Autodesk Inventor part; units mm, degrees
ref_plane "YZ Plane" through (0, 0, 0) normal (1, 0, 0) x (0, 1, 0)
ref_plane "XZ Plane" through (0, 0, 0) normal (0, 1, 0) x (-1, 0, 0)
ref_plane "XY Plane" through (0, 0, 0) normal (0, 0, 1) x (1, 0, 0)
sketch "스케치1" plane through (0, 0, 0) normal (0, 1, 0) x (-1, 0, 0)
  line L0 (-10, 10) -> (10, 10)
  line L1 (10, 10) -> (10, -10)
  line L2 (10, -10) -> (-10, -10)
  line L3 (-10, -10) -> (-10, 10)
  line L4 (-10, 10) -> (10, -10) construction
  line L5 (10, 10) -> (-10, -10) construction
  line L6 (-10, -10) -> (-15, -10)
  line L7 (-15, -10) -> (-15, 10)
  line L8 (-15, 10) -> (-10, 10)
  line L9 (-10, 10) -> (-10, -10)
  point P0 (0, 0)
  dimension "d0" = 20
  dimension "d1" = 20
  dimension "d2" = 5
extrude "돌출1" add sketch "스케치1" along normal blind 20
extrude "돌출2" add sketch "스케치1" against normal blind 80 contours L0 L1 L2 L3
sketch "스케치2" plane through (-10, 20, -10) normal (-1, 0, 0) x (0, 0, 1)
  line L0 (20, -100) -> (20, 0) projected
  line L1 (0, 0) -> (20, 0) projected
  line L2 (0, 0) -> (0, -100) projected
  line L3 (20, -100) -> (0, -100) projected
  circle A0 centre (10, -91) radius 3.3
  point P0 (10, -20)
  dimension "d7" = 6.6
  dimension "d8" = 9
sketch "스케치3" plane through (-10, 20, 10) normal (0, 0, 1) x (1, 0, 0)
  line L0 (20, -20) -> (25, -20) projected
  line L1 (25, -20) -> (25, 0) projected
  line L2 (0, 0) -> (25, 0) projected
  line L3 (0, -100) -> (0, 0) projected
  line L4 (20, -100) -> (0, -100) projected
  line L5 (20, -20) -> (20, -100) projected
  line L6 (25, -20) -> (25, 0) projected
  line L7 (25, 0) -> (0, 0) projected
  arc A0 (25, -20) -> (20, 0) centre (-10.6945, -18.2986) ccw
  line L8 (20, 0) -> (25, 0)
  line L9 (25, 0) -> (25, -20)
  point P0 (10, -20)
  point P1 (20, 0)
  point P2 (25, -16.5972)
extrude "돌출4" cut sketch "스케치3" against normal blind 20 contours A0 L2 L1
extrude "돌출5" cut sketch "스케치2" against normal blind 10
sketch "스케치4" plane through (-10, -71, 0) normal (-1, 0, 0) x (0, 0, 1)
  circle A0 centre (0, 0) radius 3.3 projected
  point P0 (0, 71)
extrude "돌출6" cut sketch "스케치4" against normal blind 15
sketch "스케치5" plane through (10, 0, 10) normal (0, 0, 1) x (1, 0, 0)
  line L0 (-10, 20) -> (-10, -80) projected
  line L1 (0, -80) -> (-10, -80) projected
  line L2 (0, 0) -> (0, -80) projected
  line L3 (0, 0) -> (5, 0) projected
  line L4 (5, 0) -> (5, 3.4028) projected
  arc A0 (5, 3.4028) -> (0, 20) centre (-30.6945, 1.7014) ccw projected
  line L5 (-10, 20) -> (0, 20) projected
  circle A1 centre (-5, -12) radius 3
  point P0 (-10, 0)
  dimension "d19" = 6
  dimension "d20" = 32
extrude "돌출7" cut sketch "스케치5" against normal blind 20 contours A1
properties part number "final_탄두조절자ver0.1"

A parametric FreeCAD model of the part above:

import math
import FreeCAD as App
import Part
import Sketcher

doc = App.newDocument("Part")
body = doc.addObject("PartDesign::Body", "Body")

# Sketch on XZ plane
sketch1 = body.newObject("Sketcher::SketchObject", "Sketch")
sketch1.AttachmentSupport = (doc.getObject("XZ_Plane"), [""])
sketch1.MapMode = "FlatFace"
sketch1.addGeometry([
    Part.LineSegment(App.Vector(-10, 10, 0), App.Vector(15, 10, 0)),
    Part.LineSegment(App.Vector(15, 10, 0), App.Vector(15, -10, 0)),
    Part.LineSegment(App.Vector(15, -10, 0), App.Vector(-10, -10, 0)),
    Part.LineSegment(App.Vector(-10, -10, 0), App.Vector(-10, 10, 0)),
], False)
sketch1.addConstraint([
    Sketcher.Constraint("Coincident", 0, 2, 1, 1),
    Sketcher.Constraint("Coincident", 1, 2, 2, 1),
    Sketcher.Constraint("Coincident", 2, 2, 3, 1),
    Sketcher.Constraint("Coincident", 3, 2, 0, 1),
    Sketcher.Constraint("Horizontal", 0),
    Sketcher.Constraint("Vertical", 1),
    Sketcher.Constraint("Horizontal", 2),
    Sketcher.Constraint("Vertical", 3),
    Sketcher.Constraint("DistanceY", 1, 2, 1, 1, 20.0),
    Sketcher.Constraint("DistanceX", 0, 1, 0, 2, 25.0),
    Sketcher.Constraint("DistanceX", -1, 1, 0, 2, 15.0),
    Sketcher.Constraint("DistanceY", -1, 1, 0, 2, 10.0),
])
pad1 = body.newObject("PartDesign::Pad", "Pad")
pad1.Profile = sketch1
pad1.Length = 20
pad1.Reversed = True

# Sketch on XZ plane
sketch2 = body.newObject("Sketcher::SketchObject", "Sketch001")
sketch2.AttachmentSupport = (doc.getObject("XZ_Plane"), [""])
sketch2.MapMode = "FlatFace"
sketch2.addGeometry([
    Part.LineSegment(App.Vector(-10, 10, 0), App.Vector(10, 10, 0)),
    Part.LineSegment(App.Vector(10, 10, 0), App.Vector(10, -10, 0)),
    Part.LineSegment(App.Vector(10, -10, 0), App.Vector(-10, -10, 0)),
    Part.LineSegment(App.Vector(-10, -10, 0), App.Vector(-10, 10, 0)),
], False)
sketch2.addConstraint([
    Sketcher.Constraint("Coincident", 0, 2, 1, 1),
    Sketcher.Constraint("Coincident", 1, 2, 2, 1),
    Sketcher.Constraint("Coincident", 2, 2, 3, 1),
    Sketcher.Constraint("Coincident", 3, 2, 0, 1),
    Sketcher.Constraint("Horizontal", 0),
    Sketcher.Constraint("Vertical", 1),
    Sketcher.Constraint("Horizontal", 2),
    Sketcher.Constraint("Vertical", 3),
    Sketcher.Constraint("Symmetric", 0, 2, 2, 2, -1, 1),
    Sketcher.Constraint("Equal", 2, 1),
    Sketcher.Constraint("DistanceX", 0, 1, 0, 2, 20.0),
])
pad2 = body.newObject("PartDesign::Pad", "Pad001")
pad2.Profile = sketch2
pad2.Length = 80

# Sketch on XY plane
sketch3 = body.newObject("Sketcher::SketchObject", "Sketch002")
sketch3.AttachmentSupport = (doc.getObject("XY_Plane"), [""])
sketch3.MapMode = "FlatFace"
sketch3.AttachmentOffset = App.Placement(App.Vector(0, 0, 10), App.Rotation())
sketch3.addGeometry([
    Part.ArcOfCircle(Part.Circle(App.Vector(-21, 2, 0), App.Vector(0, 0, 1), 36), math.radians(3), math.radians(31)),
    Part.LineSegment(App.Vector(15, 3, 0), App.Vector(15, 20, 0)),
    Part.LineSegment(App.Vector(15, 20, 0), App.Vector(10, 20, 0)),
], False)
sketch3.addConstraint([
    Sketcher.Constraint("Coincident", 0, 1, 1, 1),
    Sketcher.Constraint("Coincident", 1, 2, 2, 1),
    Sketcher.Constraint("Coincident", 2, 2, 0, 2),
    Sketcher.Constraint("Vertical", 1),
    Sketcher.Constraint("Horizontal", 2),
    Sketcher.Constraint("DistanceX", 2, 2, 2, 1, 5.0),
    Sketcher.Constraint("DistanceX", -1, 1, 0, 1, 15.0),
    Sketcher.Constraint("DistanceY", -1, 1, 1, 2, 20.0),
    Sketcher.Constraint("Radius", 0, 35.735),
    Sketcher.Constraint("DistanceY", 1, 1, 1, 2, 16.5972),
])
pocket1 = body.newObject("PartDesign::Pocket", "Pocket")
pocket1.Profile = sketch3
pocket1.Length = 20

# Sketch on YZ plane
sketch4 = body.newObject("Sketcher::SketchObject", "Sketch003")
sketch4.AttachmentSupport = (doc.getObject("YZ_Plane"), [""])
sketch4.MapMode = "FlatFace"
sketch4.AttachmentOffset = App.Placement(App.Vector(0, 0, -10), App.Rotation())
sketch4.addGeometry([
    Part.LineSegment(App.Vector(-80, -10, 0), App.Vector(-80, 10, 0)),  # 0
    Part.LineSegment(App.Vector(-80, 10, 0), App.Vector(20, 10, 0)),  # 1
    Part.LineSegment(App.Vector(20, 10, 0), App.Vector(20, -10, 0)),  # 2
    Part.LineSegment(App.Vector(20, -10, 0), App.Vector(-80, -10, 0)),  # 3
    Part.Circle(App.Vector(-71, 0, 0), App.Vector(0, 0, 1), 3.3),  # 4
], False)
sketch4.addConstraint([
    Sketcher.Constraint("Coincident", 0, 2, 1, 1),
    Sketcher.Constraint("Coincident", 1, 2, 2, 1),
    Sketcher.Constraint("Coincident", 2, 2, 3, 1),
    Sketcher.Constraint("Coincident", 3, 2, 0, 1),
    Sketcher.Constraint("Vertical", 0),
    Sketcher.Constraint("Horizontal", 1),
    Sketcher.Constraint("Vertical", 2),
    Sketcher.Constraint("Horizontal", 3),
    Sketcher.Constraint("PointOnObject", 4, 3, -1),
    Sketcher.Constraint("Diameter", 4, 6.6),
    Sketcher.Constraint("DistanceX", 0, 2, 4, 3, 9.0),
    Sketcher.Constraint("DistanceX", 1, 1, 1, 2, 100.0),
    Sketcher.Constraint("DistanceY", 0, 1, 0, 2, 20.0),
    Sketcher.Constraint("DistanceX", 4, 3, -1, 1, 71.0),
    Sketcher.Constraint("DistanceY", -1, 1, 0, 2, 10.0),
])
pocket2 = body.newObject("PartDesign::Pocket", "Pocket001")
pocket2.Profile = sketch4
pocket2.Length = 10
pocket2.Reversed = True

# Sketch on YZ plane
sketch5 = body.newObject("Sketcher::SketchObject", "Sketch004")
sketch5.AttachmentSupport = (doc.getObject("YZ_Plane"), [""])
sketch5.MapMode = "FlatFace"
sketch5.AttachmentOffset = App.Placement(App.Vector(0, 0, -10), App.Rotation())
sketch5.addGeometry(Part.Circle(App.Vector(-71, 0, 0), App.Vector(0, 0, 1), 3.3), False)
sketch5.addConstraint([
    Sketcher.Constraint("PointOnObject", 0, 3, -1),
    Sketcher.Constraint("Diameter", 0, 6.6),
    Sketcher.Constraint("DistanceX", 0, 3, -1, 1, 71.0),
])
pocket3 = body.newObject("PartDesign::Pocket", "Pocket002")
pocket3.Profile = sketch5
pocket3.Length = 15
pocket3.Reversed = True

# Sketch on XY plane
sketch6 = body.newObject("Sketcher::SketchObject", "Sketch005")
sketch6.AttachmentSupport = (doc.getObject("XY_Plane"), [""])
sketch6.MapMode = "FlatFace"
sketch6.AttachmentOffset = App.Placement(App.Vector(0, 0, 10), App.Rotation())
sketch6.addGeometry(Part.Circle(App.Vector(5, -12, 0), App.Vector(0, 0, 1), 3), False)
sketch6.addConstraint([
    Sketcher.Constraint("Diameter", 0, 6.0),
    Sketcher.Constraint("DistanceX", -1, 1, 0, 3, 5.0),
    Sketcher.Constraint("DistanceY", 0, 3, -1, 1, 12.0),
])
pocket4 = body.newObject("PartDesign::Pocket", "Pocket003")
pocket4.Profile = sketch6
pocket4.Length = 20

doc.recompute()
